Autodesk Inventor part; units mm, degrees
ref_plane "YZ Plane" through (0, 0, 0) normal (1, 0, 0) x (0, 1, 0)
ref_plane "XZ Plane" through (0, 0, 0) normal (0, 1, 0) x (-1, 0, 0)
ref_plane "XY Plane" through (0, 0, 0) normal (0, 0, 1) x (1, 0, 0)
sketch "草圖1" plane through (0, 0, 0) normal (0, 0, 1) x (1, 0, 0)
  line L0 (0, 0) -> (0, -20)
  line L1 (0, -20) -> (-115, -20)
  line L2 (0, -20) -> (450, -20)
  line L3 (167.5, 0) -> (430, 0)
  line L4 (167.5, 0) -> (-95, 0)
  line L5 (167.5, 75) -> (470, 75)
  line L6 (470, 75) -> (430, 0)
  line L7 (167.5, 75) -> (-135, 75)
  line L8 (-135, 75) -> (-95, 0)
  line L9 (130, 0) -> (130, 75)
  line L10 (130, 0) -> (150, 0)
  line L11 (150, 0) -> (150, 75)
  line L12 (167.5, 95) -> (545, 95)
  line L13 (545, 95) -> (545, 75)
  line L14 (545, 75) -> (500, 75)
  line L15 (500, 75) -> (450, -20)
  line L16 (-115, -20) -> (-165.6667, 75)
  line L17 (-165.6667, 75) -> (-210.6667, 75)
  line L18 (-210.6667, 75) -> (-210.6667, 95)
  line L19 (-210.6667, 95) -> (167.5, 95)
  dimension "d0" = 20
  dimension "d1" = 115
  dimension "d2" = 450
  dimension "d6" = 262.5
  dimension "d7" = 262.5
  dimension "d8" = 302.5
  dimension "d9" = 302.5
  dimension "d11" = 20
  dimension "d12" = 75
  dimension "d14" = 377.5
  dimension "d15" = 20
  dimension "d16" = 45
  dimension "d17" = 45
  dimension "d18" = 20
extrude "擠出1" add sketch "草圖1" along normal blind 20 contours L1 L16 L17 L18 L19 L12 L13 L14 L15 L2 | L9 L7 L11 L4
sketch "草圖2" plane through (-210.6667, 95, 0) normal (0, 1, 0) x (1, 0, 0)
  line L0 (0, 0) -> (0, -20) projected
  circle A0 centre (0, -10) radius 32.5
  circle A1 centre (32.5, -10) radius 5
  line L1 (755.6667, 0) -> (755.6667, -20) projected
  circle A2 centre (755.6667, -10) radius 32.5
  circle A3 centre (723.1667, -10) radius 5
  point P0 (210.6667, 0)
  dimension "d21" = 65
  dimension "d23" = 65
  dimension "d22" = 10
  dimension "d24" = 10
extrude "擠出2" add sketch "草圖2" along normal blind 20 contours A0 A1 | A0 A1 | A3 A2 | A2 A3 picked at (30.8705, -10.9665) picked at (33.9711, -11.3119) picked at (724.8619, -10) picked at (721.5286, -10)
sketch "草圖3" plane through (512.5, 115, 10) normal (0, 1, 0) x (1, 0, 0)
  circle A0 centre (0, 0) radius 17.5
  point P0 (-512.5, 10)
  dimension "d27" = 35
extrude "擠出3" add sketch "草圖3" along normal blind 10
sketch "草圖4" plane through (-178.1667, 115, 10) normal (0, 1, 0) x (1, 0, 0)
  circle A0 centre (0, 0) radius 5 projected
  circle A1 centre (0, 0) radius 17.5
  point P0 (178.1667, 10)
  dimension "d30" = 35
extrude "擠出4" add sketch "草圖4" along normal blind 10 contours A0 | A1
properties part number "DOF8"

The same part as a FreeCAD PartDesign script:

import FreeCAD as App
import Part
import Sketcher

V = App.Vector
Q = App.Units.Quantity


def add_polygon(sketch, points):
    """Adds a closed chain of lines whose ends are joined by coincident constraints."""
    first, n = sketch.GeometryCount, len(points)
    for a, b in zip(points, points[1:] + points[:1]):
        sketch.addGeometry(Part.LineSegment(App.Vector(*a, 0), App.Vector(*b, 0)), False)
    for i in range(n):
        sketch.addConstraint(Sketcher.Constraint("Coincident", first + i, 2, first + (i + 1) % n, 1))

doc = App.newDocument("Part")
body = doc.addObject("PartDesign::Body", "Body")

sketch1 = doc.addObject("Sketcher::SketchObject", "Sketch")
body.addObject(sketch1)
sketch1.AttachmentSupport = (doc.XY_Plane, [""])
sketch1.MapMode = "FlatFace"
add_polygon(sketch1, [(-115, -20), (0, -20), (450, -20), (500, 75), (545, 75), (545, 95), (-211, 95), (-211, 75), (-166, 75)])
add_polygon(sketch1, [(130, 0), (0, 0), (-95, 0), (-135, 75), (130, 75)])
add_polygon(sketch1, [(150, 0), (150, 75), (470, 75), (430, 0)])
sketch1.addConstraint([
    Sketcher.Constraint("Horizontal", 0),
    Sketcher.Constraint("Horizontal", 1),
    Sketcher.Constraint("Horizontal", 3),
    Sketcher.Constraint("Vertical", 4),
    Sketcher.Constraint("Horizontal", 5),
    Sketcher.Constraint("Vertical", 6),
    Sketcher.Constraint("Horizontal", 7),
    Sketcher.Constraint("Horizontal", 9),
    Sketcher.Constraint("Horizontal", 10),
    Sketcher.Constraint("Horizontal", 12),
    Sketcher.Constraint("Vertical", 13),
    Sketcher.Constraint("Vertical", 14),
    Sketcher.Constraint("Horizontal", 15),
    Sketcher.Constraint("Horizontal", 17),
    Sketcher.Constraint("Coincident", 9, 2, -1, 1),
    Sketcher.Constraint("PointOnObject", 0, 2, -2),
    Sketcher.Constraint("PointOnObject", 16, 2, -1),
    Sketcher.Constraint("Parallel", 8, 11),
    Sketcher.Constraint("Horizontal", 3, 2, 6, 2),
    Sketcher.Constraint("Horizontal", 7, 2, 11, 2),
    Sketcher.Constraint("Horizontal", 12, 2, 14, 2),
    Sketcher.Constraint("Equal", 3, 7),
    Sketcher.Constraint("Equal", 11, 16),
    Sketcher.Constraint("DistanceX", 0, 1, 0, 2, Q("115 mm")),
    Sketcher.Constraint("DistanceX", 1, 1, 1, 2, Q("450 mm")),
    Sketcher.Constraint("DistanceX", 3, 1, 3, 2, Q("45 mm")),
    Sketcher.Constraint("DistanceY", 4, 1, 4, 2, Q("20 mm")),
    Sketcher.Constraint("DistanceY", 13, 2, 13, 1, Q("75 mm")),
    Sketcher.Constraint("DistanceY", 0, 2, -1, 1, Q("20 mm")),
    Sketcher.Constraint("DistanceX", 8, 2, 10, 2, Q("20 mm")),
    Sketcher.Constraint("DistanceX", 11, 2, 8, 2, Q("20 mm")),
    Sketcher.Constraint("DistanceX", 12, 2, 14, 2, Q("20 mm")),
    Sketcher.Constraint("DistanceX", 15, 2, 3, 2, Q("75 mm")),
    Sketcher.Constraint("DistanceX", 1, 2, 15, 2, Q("20 mm")),
    Sketcher.Constraint("DistanceX", 9, 2, 9, 1, Q("130 mm")),
])
pad1 = doc.addObject("PartDesign::Pad", "Pad")
body.addObject(pad1)
pad1.Profile = sketch1
pad1.Length = 20

sketch2 = doc.addObject("Sketcher::SketchObject", "Sketch001")
body.addObject(sketch2)
sketch2.AttachmentSupport = (doc.XZ_Plane, [""])
sketch2.MapMode = "FlatFace"
sketch2.AttachmentOffset = App.Placement(V(0, 0, -95), App.Rotation())
sketch2.addGeometry([
    Part.Circle(V(-178, 10, 0), V(0, 0, 1), 5),
    Part.Circle(V(512, 10, 0), V(0, 0, 1), 5),
], False)
sketch2.addConstraint([
    Sketcher.Constraint("Equal", 0, 1),
    Sketcher.Constraint("Horizontal", 0, 3, 1, 3),
    Sketcher.Constraint("Diameter", 0, Q("10 mm")),
    Sketcher.Constraint("DistanceY", -1, 1, 0, 3, Q("10 mm")),
    Sketcher.Constraint("DistanceX", -1, 1, 1, 3, Q("512.5 mm")),
    Sketcher.Constraint("DistanceX", 0, 3, -1, 1, Q("178.1667 mm")),
])
pad2 = doc.addObject("PartDesign::Pad", "Pad001")
body.addObject(pad2)
pad2.Profile = sketch2
pad2.Length = 20
pad2.Reversed = True

sketch3 = doc.addObject("Sketcher::SketchObject", "Sketch002")
body.addObject(sketch3)
sketch3.AttachmentSupport = (doc.XZ_Plane, [""])
sketch3.MapMode = "FlatFace"
sketch3.AttachmentOffset = App.Placement(V(0, 0, -115), App.Rotation())
sketch3.addGeometry(Part.Circle(V(512, 10, 0), V(0, 0, 1), 18), False)
sketch3.addConstraint([
    Sketcher.Constraint("Diameter", 0, Q("35 mm")),
    Sketcher.Constraint("DistanceY", -1, 1, 0, 3, Q("10 mm")),
    Sketcher.Constraint("DistanceX", -1, 1, 0, 3, Q("512.5 mm")),
])
pad3 = doc.addObject("PartDesign::Pad", "Pad002")
body.addObject(pad3)
pad3.Profile = sketch3
pad3.Length = 10
pad3.Reversed = True

sketch4 = doc.addObject("Sketcher::SketchObject", "Sketch003")
body.addObject(sketch4)
sketch4.AttachmentSupport = (doc.XZ_Plane, [""])
sketch4.MapMode = "FlatFace"
sketch4.AttachmentOffset = App.Placement(V(0, 0, -115), App.Rotation())
sketch4.addGeometry(Part.Circle(V(-178, 10, 0), V(0, 0, 1), 18), False)
sketch4.addConstraint([
    Sketcher.Constraint("Diameter", 0, Q("35 mm")),
    Sketcher.Constraint("DistanceY", -1, 1, 0, 3, Q("10 mm")),
    Sketcher.Constraint("DistanceX", 0, 3, -1, 1, Q("178.1667 mm")),
])
pad4 = doc.addObject("PartDesign::Pad", "Pad003")
body.addObject(pad4)
pad4.Profile = sketch4
pad4.Length = 10
pad4.Reversed = True

doc.recompute()
